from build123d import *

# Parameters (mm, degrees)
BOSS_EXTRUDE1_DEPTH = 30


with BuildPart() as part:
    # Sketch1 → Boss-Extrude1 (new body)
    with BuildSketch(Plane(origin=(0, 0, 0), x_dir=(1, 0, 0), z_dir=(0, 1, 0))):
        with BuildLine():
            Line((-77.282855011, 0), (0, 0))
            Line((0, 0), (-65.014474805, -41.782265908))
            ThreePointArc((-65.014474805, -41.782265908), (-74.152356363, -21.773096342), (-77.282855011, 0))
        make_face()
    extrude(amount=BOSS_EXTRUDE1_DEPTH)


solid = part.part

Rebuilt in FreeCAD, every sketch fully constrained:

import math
import FreeCAD as App
import Part
import Sketcher
from FreeCAD import Vector
Q = App.Units.Quantity

doc = App.newDocument("Part")
body = doc.addObject("PartDesign::Body", "Body")

sketch1 = body.newObject("Sketcher::SketchObject", "Sketch")
sketch1.AttachmentSupport = (doc.getObject("XZ_Plane"), [""])
sketch1.MapMode = "FlatFace"
sketch1.addGeometry([
    Part.LineSegment(Vector(0, 0, 0), Vector(-77, 0, 0)),
    Part.ArcOfCircle(Part.Circle(Vector(0, 0, 0), Vector(0, 0, 1), 77), math.radians(147), math.radians(180)),
    Part.LineSegment(Vector(-65, 42, 0), Vector(0, 0, 0)),
], False)
sketch1.addConstraint([
    Sketcher.Constraint("Coincident", 0, 2, 1, 2),
    Sketcher.Constraint("Coincident", 1, 1, 2, 1),
    Sketcher.Constraint("Coincident", 2, 2, 0, 1),
    Sketcher.Constraint("Horizontal", 0),
    Sketcher.Constraint("Coincident", 1, 3, -1, 1),
    Sketcher.Constraint("Coincident", 2, 2, -1, 1),
    Sketcher.Constraint("Radius", 1, Q("77.282855 mm")),
    Sketcher.Constraint("DistanceX", 0, 2, 1, 1, Q("12.26838 mm")),
])
pad1 = body.newObject("PartDesign::Pad", "Pad")
pad1.Profile = sketch1
pad1.Length = 30
pad1.Reversed = True

doc.recompute()
